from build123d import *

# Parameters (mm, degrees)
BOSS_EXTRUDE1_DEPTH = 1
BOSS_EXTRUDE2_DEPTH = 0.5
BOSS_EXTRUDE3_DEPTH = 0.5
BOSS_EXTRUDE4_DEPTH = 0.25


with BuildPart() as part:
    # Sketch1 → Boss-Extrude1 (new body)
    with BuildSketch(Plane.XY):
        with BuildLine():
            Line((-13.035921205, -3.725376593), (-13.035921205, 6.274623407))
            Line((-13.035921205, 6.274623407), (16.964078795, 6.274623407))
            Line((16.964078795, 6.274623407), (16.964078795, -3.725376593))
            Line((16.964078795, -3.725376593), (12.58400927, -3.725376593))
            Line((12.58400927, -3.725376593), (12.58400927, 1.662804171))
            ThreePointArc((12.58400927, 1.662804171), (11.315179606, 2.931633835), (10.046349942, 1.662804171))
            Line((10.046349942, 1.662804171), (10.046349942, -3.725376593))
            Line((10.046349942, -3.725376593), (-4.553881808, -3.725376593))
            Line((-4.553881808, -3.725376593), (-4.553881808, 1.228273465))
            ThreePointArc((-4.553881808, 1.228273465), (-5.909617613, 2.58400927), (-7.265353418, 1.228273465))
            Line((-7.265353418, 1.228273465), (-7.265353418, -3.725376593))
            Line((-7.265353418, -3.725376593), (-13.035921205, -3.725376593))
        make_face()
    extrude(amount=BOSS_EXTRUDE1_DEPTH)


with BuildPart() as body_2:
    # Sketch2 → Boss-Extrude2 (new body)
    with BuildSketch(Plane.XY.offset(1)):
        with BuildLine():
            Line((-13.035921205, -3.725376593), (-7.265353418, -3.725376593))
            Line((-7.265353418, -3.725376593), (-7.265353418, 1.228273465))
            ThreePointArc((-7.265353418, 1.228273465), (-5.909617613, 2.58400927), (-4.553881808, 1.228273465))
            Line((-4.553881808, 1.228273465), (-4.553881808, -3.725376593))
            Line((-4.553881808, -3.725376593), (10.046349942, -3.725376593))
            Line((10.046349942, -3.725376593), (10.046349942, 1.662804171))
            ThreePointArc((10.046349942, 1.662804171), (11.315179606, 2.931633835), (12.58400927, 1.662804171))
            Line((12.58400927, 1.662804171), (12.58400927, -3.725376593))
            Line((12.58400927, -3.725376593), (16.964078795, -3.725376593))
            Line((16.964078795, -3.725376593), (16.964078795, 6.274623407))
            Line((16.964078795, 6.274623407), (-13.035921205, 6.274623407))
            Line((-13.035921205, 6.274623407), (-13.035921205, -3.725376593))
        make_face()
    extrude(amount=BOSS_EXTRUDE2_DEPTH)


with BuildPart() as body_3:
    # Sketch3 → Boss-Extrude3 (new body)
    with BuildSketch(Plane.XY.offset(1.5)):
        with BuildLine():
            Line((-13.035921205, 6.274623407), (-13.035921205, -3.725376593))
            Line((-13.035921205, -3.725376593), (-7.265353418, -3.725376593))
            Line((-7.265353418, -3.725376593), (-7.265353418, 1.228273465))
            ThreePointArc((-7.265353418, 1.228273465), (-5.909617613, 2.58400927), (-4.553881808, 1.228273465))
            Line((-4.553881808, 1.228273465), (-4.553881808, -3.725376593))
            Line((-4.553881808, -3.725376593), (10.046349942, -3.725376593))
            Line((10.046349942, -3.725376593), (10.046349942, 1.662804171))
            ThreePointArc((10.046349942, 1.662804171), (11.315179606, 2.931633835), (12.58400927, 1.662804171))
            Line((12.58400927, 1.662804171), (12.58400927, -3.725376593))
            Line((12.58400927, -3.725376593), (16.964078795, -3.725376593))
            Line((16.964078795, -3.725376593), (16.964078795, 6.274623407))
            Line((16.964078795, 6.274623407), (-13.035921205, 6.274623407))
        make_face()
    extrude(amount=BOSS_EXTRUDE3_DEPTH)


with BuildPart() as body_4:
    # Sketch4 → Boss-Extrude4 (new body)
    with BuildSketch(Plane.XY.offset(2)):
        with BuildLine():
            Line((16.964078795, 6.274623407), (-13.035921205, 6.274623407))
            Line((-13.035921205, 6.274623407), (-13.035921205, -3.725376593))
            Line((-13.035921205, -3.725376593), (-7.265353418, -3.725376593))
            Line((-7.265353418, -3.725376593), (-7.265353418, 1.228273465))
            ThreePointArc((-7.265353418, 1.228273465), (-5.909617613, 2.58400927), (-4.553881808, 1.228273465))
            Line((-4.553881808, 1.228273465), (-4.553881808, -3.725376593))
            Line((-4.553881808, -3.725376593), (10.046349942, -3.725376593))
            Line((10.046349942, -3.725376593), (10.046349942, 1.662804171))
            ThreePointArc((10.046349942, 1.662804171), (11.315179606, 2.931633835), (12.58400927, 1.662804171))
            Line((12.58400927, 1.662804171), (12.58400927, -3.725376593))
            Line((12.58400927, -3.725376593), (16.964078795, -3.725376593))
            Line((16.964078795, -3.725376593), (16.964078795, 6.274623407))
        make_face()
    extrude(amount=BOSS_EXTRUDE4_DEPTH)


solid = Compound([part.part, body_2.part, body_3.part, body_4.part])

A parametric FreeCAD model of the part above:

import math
import FreeCAD as App
import Part
import Sketcher
from FreeCAD import Vector

doc = App.newDocument("Part")
body = doc.addObject("PartDesign::Body", "Body")

# Sketch on XY plane
sketch1 = body.newObject("Sketcher::SketchObject", "Sketch")
sketch1.AttachmentSupport = (doc.getObject("XY_Plane"), [""])
sketch1.MapMode = "FlatFace"
sketch1.addGeometry([
    Part.LineSegment(Vector(-13.035921, 6.274623, 0), Vector(-13.035921, -3.725377, 0)),  # 0
    Part.LineSegment(Vector(-13.035921, -3.725377, 0), Vector(-7.265353, -3.725377, 0)),  # 1
    Part.LineSegment(Vector(-7.265353, -3.725377, 0), Vector(-7.265353, 1.228273, 0)),  # 2
    Part.ArcOfCircle(Part.Circle(Vector(-5.909618, 1.228273, 0), Vector(0, 0, 1), 1.355736), math.radians(0), math.radians(180)),  # 3
    Part.LineSegment(Vector(-4.553882, 1.228273, 0), Vector(-4.553882, -3.725377, 0)),  # 4
    Part.LineSegment(Vector(-4.553882, -3.725377, 0), Vector(10.04635, -3.725377, 0)),  # 5
    Part.LineSegment(Vector(10.04635, -3.725377, 0), Vector(10.04635, 1.662804, 0)),  # 6
    Part.ArcOfCircle(Part.Circle(Vector(11.31518, 1.662804, 0), Vector(0, 0, 1), 1.26883), math.radians(0), math.radians(180)),  # 7
    Part.LineSegment(Vector(12.584009, 1.662804, 0), Vector(12.584009, -3.725377, 0)),  # 8
    Part.LineSegment(Vector(12.584009, -3.725377, 0), Vector(16.964079, -3.725377, 0)),  # 9
    Part.LineSegment(Vector(16.964079, -3.725377, 0), Vector(16.964079, 6.274623, 0)),  # 10
    Part.LineSegment(Vector(16.964079, 6.274623, 0), Vector(-13.035921, 6.274623, 0)),  # 11
], False)
sketch1.addConstraint([
    Sketcher.Constraint("Coincident", 0, 2, 1, 1),
    Sketcher.Constraint("Coincident", 1, 2, 2, 1),
    Sketcher.Constraint("Tangent", 2, 2, 3, 2),
    Sketcher.Constraint("Tangent", 3, 1, 4, 1),
    Sketcher.Constraint("Coincident", 4, 2, 5, 1),
    Sketcher.Constraint("Coincident", 5, 2, 6, 1),
    Sketcher.Constraint("Tangent", 6, 2, 7, 2),
    Sketcher.Constraint("Tangent", 7, 1, 8, 1),
    Sketcher.Constraint("Coincident", 8, 2, 9, 1),
    Sketcher.Constraint("Coincident", 9, 2, 10, 1),
    Sketcher.Constraint("Coincident", 10, 2, 11, 1),
    Sketcher.Constraint("Coincident", 11, 2, 0, 1),
    Sketcher.Constraint("Vertical", 0),
    Sketcher.Constraint("Horizontal", 1),
    Sketcher.Constraint("Vertical", 2),
    Sketcher.Constraint("Vertical", 4),
    Sketcher.Constraint("Horizontal", 5),
    Sketcher.Constraint("Vertical", 6),
    Sketcher.Constraint("Vertical", 8),
    Sketcher.Constraint("Horizontal", 9),
    Sketcher.Constraint("Vertical", 10),
    Sketcher.Constraint("Horizontal", 11),
    Sketcher.Constraint("Horizontal", 1, 2, 4, 2),
    Sketcher.Constraint("Horizontal", 5, 2, 8, 2),
    Sketcher.Constraint("DistanceX", 11, 2, 11, 1, 30.0),
    Sketcher.Constraint("DistanceY", 0, 2, 0, 1, 10.0),
    Sketcher.Constraint("Radius", 7, 1.26883),
    Sketcher.Constraint("Radius", 3, 1.355736),
    Sketcher.Constraint("DistanceX", 5, 1, 5, 2, 14.600232),
    Sketcher.Constraint("DistanceX", 9, 1, 9, 2, 4.38007),
    Sketcher.Constraint("DistanceY", 2, 1, 2, 2, 4.95365),
    Sketcher.Constraint("DistanceY", 6, 1, 6, 2, 5.388181),
    Sketcher.Constraint("DistanceX", -1, 1, 7, 3, 11.31518),
    Sketcher.Constraint("DistanceY", -1, 1, 3, 3, 1.228273),
])
pad1 = body.newObject("PartDesign::Pad", "Pad")
pad1.Profile = sketch1
pad1.Length = 1
body2 = doc.addObject("PartDesign::Body", "Body001")

# Sketch on XY plane
sketch2 = body2.newObject("Sketcher::SketchObject", "Sketch001")
sketch2.AttachmentSupport = (doc.getObject("XY_Plane001"), [""])
sketch2.MapMode = "FlatFace"
sketch2.AttachmentOffset = App.Placement(Vector(0, 0, 1), App.Rotation())
sketch2.addGeometry([
    Part.LineSegment(Vector(-13.035921, -3.725377, 0), Vector(-7.265353, -3.725377, 0)),  # 0
    Part.LineSegment(Vector(-7.265353, -3.725377, 0), Vector(-7.265353, 1.228273, 0)),  # 1
    Part.ArcOfCircle(Part.Circle(Vector(-5.909618, 1.228273, 0), Vector(0, 0, 1), 1.355736), math.radians(0), math.radians(180)),  # 2
    Part.LineSegment(Vector(-4.553882, 1.228273, 0), Vector(-4.553882, -3.725377, 0)),  # 3
    Part.LineSegment(Vector(-4.553882, -3.725377, 0), Vector(10.04635, -3.725377, 0)),  # 4
    Part.LineSegment(Vector(10.04635, -3.725377, 0), Vector(10.04635, 1.662804, 0)),  # 5
    Part.ArcOfCircle(Part.Circle(Vector(11.31518, 1.662804, 0), Vector(0, 0, 1), 1.26883), math.radians(0), math.radians(180)),  # 6
    Part.LineSegment(Vector(12.584009, 1.662804, 0), Vector(12.584009, -3.725377, 0)),  # 7
    Part.LineSegment(Vector(12.584009, -3.725377, 0), Vector(16.964079, -3.725377, 0)),  # 8
    Part.LineSegment(Vector(16.964079, -3.725377, 0), Vector(16.964079, 6.274623, 0)),  # 9
    Part.LineSegment(Vector(16.964079, 6.274623, 0), Vector(-13.035921, 6.274623, 0)),  # 10
    Part.LineSegment(Vector(-13.035921, 6.274623, 0), Vector(-13.035921, -3.725377, 0)),  # 11
], False)
sketch2.addConstraint([
    Sketcher.Constraint("Coincident", 0, 2, 1, 1),
    Sketcher.Constraint("Tangent", 1, 2, 2, 2),
    Sketcher.Constraint("Tangent", 2, 1, 3, 1),
    Sketcher.Constraint("Coincident", 3, 2, 4, 1),
    Sketcher.Constraint("Coincident", 4, 2, 5, 1),
    Sketcher.Constraint("Tangent", 5, 2, 6, 2),
    Sketcher.Constraint("Tangent", 6, 1, 7, 1),
    Sketcher.Constraint("Coincident", 7, 2, 8, 1),
    Sketcher.Constraint("Coincident", 8, 2, 9, 1),
    Sketcher.Constraint("Coincident", 9, 2, 10, 1),
    Sketcher.Constraint("Coincident", 10, 2, 11, 1),
    Sketcher.Constraint("Coincident", 11, 2, 0, 1),
    Sketcher.Constraint("Horizontal", 0),
    Sketcher.Constraint("Vertical", 1),
    Sketcher.Constraint("Vertical", 3),
    Sketcher.Constraint("Horizontal", 4),
    Sketcher.Constraint("Vertical", 5),
    Sketcher.Constraint("Vertical", 7),
    Sketcher.Constraint("Horizontal", 8),
    Sketcher.Constraint("Vertical", 9),
    Sketcher.Constraint("Horizontal", 10),
    Sketcher.Constraint("Vertical", 11),
    Sketcher.Constraint("Horizontal", 0, 2, 3, 2),
    Sketcher.Constraint("Horizontal", 4, 2, 7, 2),
    Sketcher.Constraint("DistanceX", 10, 2, 10, 1, 30.0),
    Sketcher.Constraint("DistanceY", 9, 1, 9, 2, 10.0),
    Sketcher.Constraint("Radius", 6, 1.26883),
    Sketcher.Constraint("Radius", 2, 1.355736),
    Sketcher.Constraint("DistanceX", 4, 1, 4, 2, 14.600232),
    Sketcher.Constraint("DistanceX", 8, 1, 8, 2, 4.38007),
    Sketcher.Constraint("DistanceY", 1, 1, 1, 2, 4.95365),
    Sketcher.Constraint("DistanceY", 5, 1, 5, 2, 5.388181),
    Sketcher.Constraint("DistanceX", -1, 1, 6, 3, 11.31518),
    Sketcher.Constraint("DistanceY", -1, 1, 2, 3, 1.228273),
])
pad2 = body2.newObject("PartDesign::Pad", "Pad001")
pad2.Profile = sketch2
pad2.Length = 0.5
body3 = doc.addObject("PartDesign::Body", "Body002")

# Sketch on XY plane
sketch3 = body3.newObject("Sketcher::SketchObject", "Sketch002")
sketch3.AttachmentSupport = (doc.getObject("XY_Plane002"), [""])
sketch3.MapMode = "FlatFace"
sketch3.AttachmentOffset = App.Placement(Vector(0, 0, 1.5), App.Rotation())
sketch3.addGeometry([
    Part.LineSegment(Vector(-13.035921, 6.274623, 0), Vector(-13.035921, -3.725377, 0)),  # 0
    Part.LineSegment(Vector(-13.035921, -3.725377, 0), Vector(-7.265353, -3.725377, 0)),  # 1
    Part.LineSegment(Vector(-7.265353, -3.725377, 0), Vector(-7.265353, 1.228273, 0)),  # 2
    Part.ArcOfCircle(Part.Circle(Vector(-5.909618, 1.228273, 0), Vector(0, 0, 1), 1.355736), math.radians(0), math.radians(180)),  # 3
    Part.LineSegment(Vector(-4.553882, 1.228273, 0), Vector(-4.553882, -3.725377, 0)),  # 4
    Part.LineSegment(Vector(-4.553882, -3.725377, 0), Vector(10.04635, -3.725377, 0)),  # 5
    Part.LineSegment(Vector(10.04635, -3.725377, 0), Vector(10.04635, 1.662804, 0)),  # 6
    Part.ArcOfCircle(Part.Circle(Vector(11.31518, 1.662804, 0), Vector(0, 0, 1), 1.26883), math.radians(0), math.radians(180)),  # 7
    Part.LineSegment(Vector(12.584009, 1.662804, 0), Vector(12.584009, -3.725377, 0)),  # 8
    Part.LineSegment(Vector(12.584009, -3.725377, 0), Vector(16.964079, -3.725377, 0)),  # 9
    Part.LineSegment(Vector(16.964079, -3.725377, 0), Vector(16.964079, 6.274623, 0)),  # 10
    Part.LineSegment(Vector(16.964079, 6.274623, 0), Vector(-13.035921, 6.274623, 0)),  # 11
], False)
sketch3.addConstraint([
    Sketcher.Constraint("Coincident", 0, 2, 1, 1),
    Sketcher.Constraint("Coincident", 1, 2, 2, 1),
    Sketcher.Constraint("Tangent", 2, 2, 3, 2),
    Sketcher.Constraint("Tangent", 3, 1, 4, 1),
    Sketcher.Constraint("Coincident", 4, 2, 5, 1),
    Sketcher.Constraint("Coincident", 5, 2, 6, 1),
    Sketcher.Constraint("Tangent", 6, 2, 7, 2),
    Sketcher.Constraint("Tangent", 7, 1, 8, 1),
    Sketcher.Constraint("Coincident", 8, 2, 9, 1),
    Sketcher.Constraint("Coincident", 9, 2, 10, 1),
    Sketcher.Constraint("Coincident", 10, 2, 11, 1),
    Sketcher.Constraint("Coincident", 11, 2, 0, 1),
    Sketcher.Constraint("Vertical", 0),
    Sketcher.Constraint("Horizontal", 1),
    Sketcher.Constraint("Vertical", 2),
    Sketcher.Constraint("Vertical", 4),
    Sketcher.Constraint("Horizontal", 5),
    Sketcher.Constraint("Vertical", 6),
    Sketcher.Constraint("Vertical", 8),
    Sketcher.Constraint("Horizontal", 9),
    Sketcher.Constraint("Vertical", 10),
    Sketcher.Constraint("Horizontal", 11),
    Sketcher.Constraint("Horizontal", 1, 2, 4, 2),
    Sketcher.Constraint("Horizontal", 5, 2, 8, 2),
    Sketcher.Constraint("DistanceX", 11, 2, 11, 1, 30.0),
    Sketcher.Constraint("DistanceY", 0, 2, 0, 1, 10.0),
    Sketcher.Constraint("Radius", 7, 1.26883),
    Sketcher.Constraint("Radius", 3, 1.355736),
    Sketcher.Constraint("DistanceX", 5, 1, 5, 2, 14.600232),
    Sketcher.Constraint("DistanceX", 9, 1, 9, 2, 4.38007),
    Sketcher.Constraint("DistanceY", 2, 1, 2, 2, 4.95365),
    Sketcher.Constraint("DistanceY", 6, 1, 6, 2, 5.388181),
    Sketcher.Constraint("DistanceX", -1, 1, 7, 3, 11.31518),
    Sketcher.Constraint("DistanceY", -1, 1, 3, 3, 1.228273),
])
pad3 = body3.newObject("PartDesign::Pad", "Pad002")
pad3.Profile = sketch3
pad3.Length = 0.5
body4 = doc.addObject("PartDesign::Body", "Body003")

# Sketch on XY plane
sketch4 = body4.newObject("Sketcher::SketchObject", "Sketch003")
sketch4.AttachmentSupport = (doc.getObject("XY_Plane003"), [""])
sketch4.MapMode = "FlatFace"
sketch4.AttachmentOffset = App.Placement(Vector(0, 0, 2), App.Rotation())
sketch4.addGeometry([
    Part.LineSegment(Vector(16.964079, 6.274623, 0), Vector(-13.035921, 6.274623, 0)),  # 0
    Part.LineSegment(Vector(-13.035921, 6.274623, 0), Vector(-13.035921, -3.725377, 0)),  # 1
    Part.LineSegment(Vector(-13.035921, -3.725377, 0), Vector(-7.265353, -3.725377, 0)),  # 2
    Part.LineSegment(Vector(-7.265353, -3.725377, 0), Vector(-7.265353, 1.228273, 0)),  # 3
    Part.ArcOfCircle(Part.Circle(Vector(-5.909618, 1.228273, 0), Vector(0, 0, 1), 1.355736), math.radians(0), math.radians(180)),  # 4
    Part.LineSegment(Vector(-4.553882, 1.228273, 0), Vector(-4.553882, -3.725377, 0)),  # 5
    Part.LineSegment(Vector(-4.553882, -3.725377, 0), Vector(10.04635, -3.725377, 0)),  # 6
    Part.LineSegment(Vector(10.04635, -3.725377, 0), Vector(10.04635, 1.662804, 0)),  # 7
    Part.ArcOfCircle(Part.Circle(Vector(11.31518, 1.662804, 0), Vector(0, 0, 1), 1.26883), math.radians(0), math.radians(180)),  # 8
    Part.LineSegment(Vector(12.584009, 1.662804, 0), Vector(12.584009, -3.725377, 0)),  # 9
    Part.LineSegment(Vector(12.584009, -3.725377, 0), Vector(16.964079, -3.725377, 0)),  # 10
    Part.LineSegment(Vector(16.964079, -3.725377, 0), Vector(16.964079, 6.274623, 0)),  # 11
], False)
sketch4.addConstraint([
    Sketcher.Constraint("Coincident", 0, 2, 1, 1),
    Sketcher.Constraint("Coincident", 1, 2, 2, 1),
    Sketcher.Constraint("Coincident", 2, 2, 3, 1),
    Sketcher.Constraint("Tangent", 3, 2, 4, 2),
    Sketcher.Constraint("Tangent", 4, 1, 5, 1),
    Sketcher.Constraint("Coincident", 5, 2, 6, 1),
    Sketcher.Constraint("Coincident", 6, 2, 7, 1),
    Sketcher.Constraint("Tangent", 7, 2, 8, 2),
    Sketcher.Constraint("Tangent", 8, 1, 9, 1),
    Sketcher.Constraint("Coincident", 9, 2, 10, 1),
    Sketcher.Constraint("Coincident", 10, 2, 11, 1),
    Sketcher.Constraint("Coincident", 11, 2, 0, 1),
    Sketcher.Constraint("Horizontal", 0),
    Sketcher.Constraint("Vertical", 1),
    Sketcher.Constraint("Horizontal", 2),
    Sketcher.Constraint("Vertical", 3),
    Sketcher.Constraint("Vertical", 5),
    Sketcher.Constraint("Horizontal", 6),
    Sketcher.Constraint("Vertical", 7),
    Sketcher.Constraint("Vertical", 9),
    Sketcher.Constraint("Horizontal", 10),
    Sketcher.Constraint("Vertical", 11),
    Sketcher.Constraint("Horizontal", 2, 2, 5, 2),
    Sketcher.Constraint("Horizontal", 6, 2, 9, 2),
    Sketcher.Constraint("DistanceX", 0, 2, 0, 1, 30.0),
    Sketcher.Constraint("DistanceY", 1, 2, 1, 1, 10.0),
    Sketcher.Constraint("Radius", 8, 1.26883),
    Sketcher.Constraint("Radius", 4, 1.355736),
    Sketcher.Constraint("DistanceX", 6, 1, 6, 2, 14.600232),
    Sketcher.Constraint("DistanceX", 10, 1, 10, 2, 4.38007),
    Sketcher.Constraint("DistanceY", 3, 1, 3, 2, 4.95365),
    Sketcher.Constraint("DistanceY", 7, 1, 7, 2, 5.388181),
    Sketcher.Constraint("DistanceX", -1, 1, 8, 3, 11.31518),
    Sketcher.Constraint("DistanceY", -1, 1, 4, 3, 1.228273),
])
pad4 = body4.newObject("PartDesign::Pad", "Pad003")
pad4.Profile = sketch4
pad4.Length = 0.25

doc.recompute()
